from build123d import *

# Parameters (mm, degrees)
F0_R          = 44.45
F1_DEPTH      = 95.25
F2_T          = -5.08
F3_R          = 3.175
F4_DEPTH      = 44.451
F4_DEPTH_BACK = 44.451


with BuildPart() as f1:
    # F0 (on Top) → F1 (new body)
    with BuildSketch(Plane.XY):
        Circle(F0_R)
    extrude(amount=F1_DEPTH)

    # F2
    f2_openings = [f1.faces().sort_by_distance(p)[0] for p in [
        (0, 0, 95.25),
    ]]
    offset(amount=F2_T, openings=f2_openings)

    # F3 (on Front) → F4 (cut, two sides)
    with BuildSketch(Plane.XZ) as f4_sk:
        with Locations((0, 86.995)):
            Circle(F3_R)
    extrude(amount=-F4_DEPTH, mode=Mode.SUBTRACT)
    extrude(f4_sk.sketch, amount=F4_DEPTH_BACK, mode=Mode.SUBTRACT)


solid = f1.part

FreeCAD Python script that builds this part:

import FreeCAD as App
import Part
import Sketcher
from FreeCAD import Vector
Q = App.Units.Quantity


def faces_at(feature, points):
    """Names of the faces that lie closest to the given points."""
    faces = feature.Shape.Faces
    near = lambda p: min(range(len(faces)), key=lambda i: faces[i].distToShape(Part.Vertex(*p))[0])
    return sorted({f"Face{near(p) + 1}" for p in points})

doc = App.newDocument("Part")
params = doc.addObject("Spreadsheet::Sheet", "Params")
for row, (alias, value) in enumerate([
    ("sketch1_diameter", "3.5 in"),
    ("pad1_length", "3.75 in"),
    ("thickness_wall", "0.2 in"),
    ("sketch2_diameter", "0.25 in"),
], start=1):
    params.set(f"A{row}", alias)
    params.set(f"B{row}", "=" + value)
    params.setAlias(f"B{row}", alias)

body = doc.addObject("PartDesign::Body", "Body")

# Sketch on XY plane
sketch1 = body.newObject("Sketcher::SketchObject", "Sketch")
sketch1.AttachmentSupport = (doc.getObject("XY_Plane"), [""])
sketch1.MapMode = "FlatFace"
sketch1.addGeometry(Part.Circle(Vector(0, 0, 0), Vector(0, 0, 1), 44.45), False)
sketch1.addConstraint(Sketcher.Constraint("Coincident", 0, 3, -1, 1))
sketch1.addConstraint(Sketcher.Constraint("Diameter", 0, Q("3.5 in")))
sketch1.setExpression("Constraints[1]", "Params.sketch1_diameter")
pad1 = body.newObject("PartDesign::Pad", "Pad")
pad1.Profile = sketch1
pad1.setExpression("Length", "Params.pad1_length")
doc.recompute()

thickness = body.newObject("PartDesign::Thickness", "Thickness")
thickness.Base = (pad1, faces_at(pad1, [(0, 0, 95.25)]))
thickness.setExpression("Value", "Params.thickness_wall")
thickness.Reversed = True
thickness.Join = "Arc"

# Sketch on XZ plane
sketch2 = body.newObject("Sketcher::SketchObject", "Sketch001")
sketch2.AttachmentSupport = (doc.getObject("XZ_Plane"), [""])
sketch2.MapMode = "FlatFace"
sketch2.addGeometry(Part.Circle(Vector(0, 86.995, 0), Vector(0, 0, 1), 3.175), False)
sketch2.addConstraint(Sketcher.Constraint("PointOnObject", 0, 3, -2))
sketch2.addConstraint(Sketcher.Constraint("Diameter", 0, Q("0.25 in")))
sketch2.addConstraint(Sketcher.Constraint("DistanceY", -1, 1, 0, 3, Q("3.425 in")))
sketch2.setExpression("Constraints[1]", "Params.sketch2_diameter")
pocket1 = body.newObject("PartDesign::Pocket", "Pocket")
pocket1.Profile = sketch2
pocket1.Type = "ThroughAll"
pocket1.Midplane = True

doc.recompute()
